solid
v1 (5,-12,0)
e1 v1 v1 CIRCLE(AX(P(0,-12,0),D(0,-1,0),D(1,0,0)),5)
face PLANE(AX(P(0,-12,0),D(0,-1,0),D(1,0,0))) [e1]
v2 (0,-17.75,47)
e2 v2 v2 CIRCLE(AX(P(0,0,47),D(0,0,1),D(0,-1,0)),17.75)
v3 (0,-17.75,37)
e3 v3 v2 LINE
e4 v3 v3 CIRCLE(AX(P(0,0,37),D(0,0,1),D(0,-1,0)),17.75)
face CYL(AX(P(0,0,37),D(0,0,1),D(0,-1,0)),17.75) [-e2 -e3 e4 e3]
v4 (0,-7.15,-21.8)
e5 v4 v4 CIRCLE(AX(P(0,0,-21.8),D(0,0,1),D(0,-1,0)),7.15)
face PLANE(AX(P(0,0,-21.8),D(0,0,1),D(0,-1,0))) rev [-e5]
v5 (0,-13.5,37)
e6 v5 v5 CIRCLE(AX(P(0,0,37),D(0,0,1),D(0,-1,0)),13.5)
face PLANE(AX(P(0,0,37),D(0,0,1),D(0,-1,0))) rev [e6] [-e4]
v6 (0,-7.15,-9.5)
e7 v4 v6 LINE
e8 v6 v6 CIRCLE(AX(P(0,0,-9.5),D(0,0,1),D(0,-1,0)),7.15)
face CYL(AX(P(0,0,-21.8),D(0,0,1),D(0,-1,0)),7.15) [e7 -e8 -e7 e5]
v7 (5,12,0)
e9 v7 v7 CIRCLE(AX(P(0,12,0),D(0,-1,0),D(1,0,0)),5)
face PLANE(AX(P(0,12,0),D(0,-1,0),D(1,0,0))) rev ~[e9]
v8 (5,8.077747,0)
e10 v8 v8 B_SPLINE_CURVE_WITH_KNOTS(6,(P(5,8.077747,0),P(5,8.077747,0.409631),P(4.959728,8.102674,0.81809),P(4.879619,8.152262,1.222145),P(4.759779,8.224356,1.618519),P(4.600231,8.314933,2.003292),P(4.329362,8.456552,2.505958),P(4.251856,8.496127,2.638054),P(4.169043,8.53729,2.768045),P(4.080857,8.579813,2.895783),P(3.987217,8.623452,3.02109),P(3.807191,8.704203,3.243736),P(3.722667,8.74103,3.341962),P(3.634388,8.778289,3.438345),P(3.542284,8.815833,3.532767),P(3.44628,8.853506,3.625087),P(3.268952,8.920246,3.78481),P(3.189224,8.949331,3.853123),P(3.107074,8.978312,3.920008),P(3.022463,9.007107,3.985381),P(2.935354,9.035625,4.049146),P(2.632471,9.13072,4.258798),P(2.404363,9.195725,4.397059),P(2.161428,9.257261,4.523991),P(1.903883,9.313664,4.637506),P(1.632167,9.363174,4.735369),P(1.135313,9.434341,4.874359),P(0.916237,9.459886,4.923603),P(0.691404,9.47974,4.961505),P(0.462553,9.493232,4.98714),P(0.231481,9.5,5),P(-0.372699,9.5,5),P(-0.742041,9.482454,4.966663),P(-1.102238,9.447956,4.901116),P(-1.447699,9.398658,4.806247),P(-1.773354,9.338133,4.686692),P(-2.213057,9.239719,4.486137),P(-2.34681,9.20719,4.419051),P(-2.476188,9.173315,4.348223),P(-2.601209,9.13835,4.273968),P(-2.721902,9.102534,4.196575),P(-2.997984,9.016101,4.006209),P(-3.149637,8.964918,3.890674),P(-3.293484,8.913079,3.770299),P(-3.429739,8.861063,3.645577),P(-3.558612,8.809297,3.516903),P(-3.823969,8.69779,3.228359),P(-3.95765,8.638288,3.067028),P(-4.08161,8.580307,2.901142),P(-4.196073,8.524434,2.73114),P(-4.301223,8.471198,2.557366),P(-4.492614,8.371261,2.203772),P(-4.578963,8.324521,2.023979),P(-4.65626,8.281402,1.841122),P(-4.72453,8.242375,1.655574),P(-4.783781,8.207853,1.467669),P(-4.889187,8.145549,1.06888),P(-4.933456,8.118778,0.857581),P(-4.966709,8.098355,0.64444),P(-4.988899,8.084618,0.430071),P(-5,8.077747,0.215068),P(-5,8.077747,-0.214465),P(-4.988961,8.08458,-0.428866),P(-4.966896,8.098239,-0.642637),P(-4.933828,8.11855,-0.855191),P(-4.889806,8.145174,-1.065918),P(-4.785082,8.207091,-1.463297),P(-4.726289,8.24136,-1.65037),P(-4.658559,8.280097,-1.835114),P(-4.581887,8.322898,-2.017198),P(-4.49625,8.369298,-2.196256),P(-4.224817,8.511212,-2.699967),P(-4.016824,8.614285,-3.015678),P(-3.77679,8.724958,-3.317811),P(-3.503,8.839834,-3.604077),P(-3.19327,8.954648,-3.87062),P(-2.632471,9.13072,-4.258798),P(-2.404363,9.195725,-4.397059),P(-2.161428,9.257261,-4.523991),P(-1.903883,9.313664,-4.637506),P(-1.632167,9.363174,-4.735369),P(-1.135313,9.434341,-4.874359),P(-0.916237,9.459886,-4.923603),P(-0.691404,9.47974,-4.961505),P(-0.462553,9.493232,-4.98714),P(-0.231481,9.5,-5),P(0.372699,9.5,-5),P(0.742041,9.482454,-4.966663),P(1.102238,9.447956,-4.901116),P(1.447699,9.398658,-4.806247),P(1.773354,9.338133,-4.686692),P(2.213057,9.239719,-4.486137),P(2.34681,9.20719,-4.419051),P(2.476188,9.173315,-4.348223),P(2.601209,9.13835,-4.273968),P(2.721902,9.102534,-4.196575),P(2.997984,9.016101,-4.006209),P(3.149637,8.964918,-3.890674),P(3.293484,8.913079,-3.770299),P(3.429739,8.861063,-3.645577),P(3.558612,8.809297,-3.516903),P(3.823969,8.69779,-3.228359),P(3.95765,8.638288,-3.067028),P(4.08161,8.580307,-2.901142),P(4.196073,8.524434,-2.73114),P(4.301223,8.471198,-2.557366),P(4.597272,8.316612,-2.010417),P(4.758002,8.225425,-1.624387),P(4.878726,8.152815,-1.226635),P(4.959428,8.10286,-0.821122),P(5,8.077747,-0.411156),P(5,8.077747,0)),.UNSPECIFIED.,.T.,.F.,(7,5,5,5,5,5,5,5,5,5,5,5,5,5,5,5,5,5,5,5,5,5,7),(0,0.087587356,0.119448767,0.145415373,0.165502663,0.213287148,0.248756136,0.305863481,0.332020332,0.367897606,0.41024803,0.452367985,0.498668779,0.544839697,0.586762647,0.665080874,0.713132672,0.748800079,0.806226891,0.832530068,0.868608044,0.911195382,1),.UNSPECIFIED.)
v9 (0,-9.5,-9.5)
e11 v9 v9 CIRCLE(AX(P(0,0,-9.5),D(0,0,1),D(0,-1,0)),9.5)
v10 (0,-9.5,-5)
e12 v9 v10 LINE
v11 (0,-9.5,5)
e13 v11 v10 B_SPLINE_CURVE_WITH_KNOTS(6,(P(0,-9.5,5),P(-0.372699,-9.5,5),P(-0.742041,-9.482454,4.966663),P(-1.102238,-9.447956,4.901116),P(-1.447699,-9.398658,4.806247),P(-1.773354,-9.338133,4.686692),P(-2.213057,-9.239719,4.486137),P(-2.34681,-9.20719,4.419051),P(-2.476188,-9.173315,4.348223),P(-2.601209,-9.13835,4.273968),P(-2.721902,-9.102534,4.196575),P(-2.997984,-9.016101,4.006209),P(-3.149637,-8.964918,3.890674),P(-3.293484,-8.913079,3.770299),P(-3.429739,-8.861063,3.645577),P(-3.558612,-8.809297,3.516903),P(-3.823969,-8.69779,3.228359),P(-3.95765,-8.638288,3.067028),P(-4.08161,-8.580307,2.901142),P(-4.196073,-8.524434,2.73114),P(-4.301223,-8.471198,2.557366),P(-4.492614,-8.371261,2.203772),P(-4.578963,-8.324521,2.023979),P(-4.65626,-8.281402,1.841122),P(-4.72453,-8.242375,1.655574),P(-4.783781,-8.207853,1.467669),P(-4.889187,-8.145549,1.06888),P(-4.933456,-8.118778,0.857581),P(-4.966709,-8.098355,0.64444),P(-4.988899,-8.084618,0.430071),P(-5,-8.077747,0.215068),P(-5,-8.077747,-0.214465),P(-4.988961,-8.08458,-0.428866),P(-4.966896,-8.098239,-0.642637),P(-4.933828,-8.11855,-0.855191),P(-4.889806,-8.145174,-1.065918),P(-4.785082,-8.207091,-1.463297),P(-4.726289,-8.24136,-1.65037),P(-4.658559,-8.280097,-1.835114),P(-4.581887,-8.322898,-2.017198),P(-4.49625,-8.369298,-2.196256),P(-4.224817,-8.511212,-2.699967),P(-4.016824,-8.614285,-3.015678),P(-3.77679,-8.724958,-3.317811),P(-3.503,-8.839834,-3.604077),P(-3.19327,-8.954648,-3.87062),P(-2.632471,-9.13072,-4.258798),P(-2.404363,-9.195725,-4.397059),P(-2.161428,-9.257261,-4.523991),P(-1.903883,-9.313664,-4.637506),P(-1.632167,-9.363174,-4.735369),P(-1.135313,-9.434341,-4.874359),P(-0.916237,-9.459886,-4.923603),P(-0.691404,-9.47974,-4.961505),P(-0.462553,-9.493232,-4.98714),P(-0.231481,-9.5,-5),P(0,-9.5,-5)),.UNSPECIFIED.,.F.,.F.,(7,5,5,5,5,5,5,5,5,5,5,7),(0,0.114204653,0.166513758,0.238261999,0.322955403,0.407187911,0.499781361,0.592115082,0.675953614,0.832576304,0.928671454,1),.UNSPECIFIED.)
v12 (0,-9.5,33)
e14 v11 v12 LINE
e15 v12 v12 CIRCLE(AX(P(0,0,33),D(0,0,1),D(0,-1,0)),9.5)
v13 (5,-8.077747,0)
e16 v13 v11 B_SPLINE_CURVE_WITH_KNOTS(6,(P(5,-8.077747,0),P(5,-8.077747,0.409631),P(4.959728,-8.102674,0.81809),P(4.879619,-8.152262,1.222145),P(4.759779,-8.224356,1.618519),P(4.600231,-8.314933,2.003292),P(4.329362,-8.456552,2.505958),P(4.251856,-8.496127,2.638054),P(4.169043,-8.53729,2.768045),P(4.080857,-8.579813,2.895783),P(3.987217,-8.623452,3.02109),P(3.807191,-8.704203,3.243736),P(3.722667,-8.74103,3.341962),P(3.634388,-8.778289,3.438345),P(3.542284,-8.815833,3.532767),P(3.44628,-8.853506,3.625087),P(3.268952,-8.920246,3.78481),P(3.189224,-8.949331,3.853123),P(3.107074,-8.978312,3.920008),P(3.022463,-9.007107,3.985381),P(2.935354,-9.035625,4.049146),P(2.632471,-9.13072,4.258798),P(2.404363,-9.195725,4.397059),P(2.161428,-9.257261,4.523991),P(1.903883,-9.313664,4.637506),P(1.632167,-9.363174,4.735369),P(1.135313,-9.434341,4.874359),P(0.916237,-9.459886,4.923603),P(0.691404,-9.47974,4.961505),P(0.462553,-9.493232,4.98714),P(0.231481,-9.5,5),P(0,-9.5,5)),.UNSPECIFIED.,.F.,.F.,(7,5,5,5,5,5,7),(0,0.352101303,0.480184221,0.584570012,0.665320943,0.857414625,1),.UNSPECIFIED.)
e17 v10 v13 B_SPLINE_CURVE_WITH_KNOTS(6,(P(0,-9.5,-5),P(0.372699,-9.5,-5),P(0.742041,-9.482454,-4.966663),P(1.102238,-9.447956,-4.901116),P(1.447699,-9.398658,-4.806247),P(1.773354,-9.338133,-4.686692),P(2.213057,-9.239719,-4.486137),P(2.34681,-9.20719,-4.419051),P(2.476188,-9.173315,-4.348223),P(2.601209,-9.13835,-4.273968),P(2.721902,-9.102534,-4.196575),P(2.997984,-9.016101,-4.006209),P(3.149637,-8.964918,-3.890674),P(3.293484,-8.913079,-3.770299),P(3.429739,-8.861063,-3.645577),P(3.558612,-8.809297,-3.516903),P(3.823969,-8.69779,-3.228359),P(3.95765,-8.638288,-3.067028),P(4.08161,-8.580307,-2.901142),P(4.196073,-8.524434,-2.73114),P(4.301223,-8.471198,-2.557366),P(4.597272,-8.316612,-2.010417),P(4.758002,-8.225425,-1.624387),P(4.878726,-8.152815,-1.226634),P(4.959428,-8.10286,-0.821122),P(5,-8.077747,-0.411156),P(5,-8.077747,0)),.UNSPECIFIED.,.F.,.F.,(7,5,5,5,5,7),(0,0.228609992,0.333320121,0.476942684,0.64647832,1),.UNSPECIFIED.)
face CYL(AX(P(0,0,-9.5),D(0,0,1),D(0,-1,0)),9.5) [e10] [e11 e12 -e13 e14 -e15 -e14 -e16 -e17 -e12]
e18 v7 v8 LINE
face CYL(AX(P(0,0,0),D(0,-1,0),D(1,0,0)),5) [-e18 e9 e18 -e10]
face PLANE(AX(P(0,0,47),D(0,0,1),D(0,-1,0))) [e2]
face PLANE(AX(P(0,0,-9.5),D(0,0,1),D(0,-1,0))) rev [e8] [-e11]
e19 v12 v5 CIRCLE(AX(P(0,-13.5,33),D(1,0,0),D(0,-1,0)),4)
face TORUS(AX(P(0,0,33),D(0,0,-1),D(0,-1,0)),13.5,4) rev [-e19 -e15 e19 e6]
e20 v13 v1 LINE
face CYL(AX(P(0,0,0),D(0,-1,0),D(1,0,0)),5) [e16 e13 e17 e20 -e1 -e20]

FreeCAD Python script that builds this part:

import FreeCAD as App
import Part
import Sketcher
from FreeCAD import Vector
Q = App.Units.Quantity


def edges_at(feature, points):
    """Names of the edges that pass closest to the given points."""
    edges = feature.Shape.Edges
    near = lambda p: min(range(len(edges)), key=lambda i: edges[i].distToShape(Part.Vertex(*p))[0])
    return sorted({f"Edge{near(p) + 1}" for p in points})


def add_polygon(sketch, points):
    """Adds a closed chain of lines whose ends are joined by coincident constraints."""
    first, n = sketch.GeometryCount, len(points)
    for a, b in zip(points, points[1:] + points[:1]):
        sketch.addGeometry(Part.LineSegment(App.Vector(*a, 0), App.Vector(*b, 0)), False)
    for i in range(n):
        sketch.addConstraint(Sketcher.Constraint("Coincident", first + i, 2, first + (i + 1) % n, 1))

doc = App.newDocument("Part")
body = doc.addObject("PartDesign::Body", "Body")

# Sketch on YZ plane
sketch1 = doc.addObject("Sketcher::SketchObject", "Sketch")
body.addObject(sketch1)
sketch1.AttachmentSupport = (doc.YZ_Plane, [""])
sketch1.MapMode = "FlatFace"
add_polygon(sketch1, [(-9.5, -9.5), (-7.2, -9.5), (-7.2, -21.8), (0, -21.8), (0, 47), (-17.8, 47), (-17.8, 37), (-9.5, 37)])  # lines 0-7
sketch1.addConstraint([
    Sketcher.Constraint("Horizontal", 0),
    Sketcher.Constraint("Vertical", 1),
    Sketcher.Constraint("Horizontal", 2),
    Sketcher.Constraint("Vertical", 3),
    Sketcher.Constraint("Horizontal", 4),
    Sketcher.Constraint("Vertical", 5),
    Sketcher.Constraint("Horizontal", 6),
    Sketcher.Constraint("Vertical", 7),
    Sketcher.Constraint("PointOnObject", 2, 2, -2),
    Sketcher.Constraint("DistanceY", 5, 2, 5, 1, Q("10 mm")),
    Sketcher.Constraint("DistanceY", 1, 2, 1, 1, Q("12.3 mm")),
    Sketcher.Constraint("DistanceY", 3, 1, 3, 2, Q("68.8 mm")),
    Sketcher.Constraint("DistanceY", -1, 1, 3, 2, Q("47 mm")),
    Sketcher.Constraint("DistanceX", 0, 1, 0, 2, Q("2.35 mm")),
    Sketcher.Constraint("DistanceX", 2, 1, 2, 2, Q("7.15 mm")),
    Sketcher.Constraint("DistanceX", 4, 2, 4, 1, Q("17.75 mm")),
])
revolution = doc.addObject("PartDesign::Revolution", "Revolution")
body.addObject(revolution)
revolution.Profile = sketch1
revolution.ReferenceAxis = (sketch1, ["V_Axis"])
revolution.Angle = 360

# Sketch on XZ plane
sketch2 = doc.addObject("Sketcher::SketchObject", "Sketch001")
body.addObject(sketch2)
sketch2.AttachmentSupport = (doc.XZ_Plane, [""])
sketch2.MapMode = "FlatFace"
sketch2.addGeometry(Part.Circle(Vector(0, 0, 0), Vector(0, 0, 1), 5), False)
sketch2.addConstraint([
    Sketcher.Constraint("Coincident", 0, 3, -1, 1),
    Sketcher.Constraint("Diameter", 0, Q("10 mm")),
])
pad1 = doc.addObject("PartDesign::Pad", "Pad")
body.addObject(pad1)
pad1.Profile = sketch2
pad1.Length = 24
pad1.Midplane = True
doc.recompute()

fillet = doc.addObject("PartDesign::Fillet", "Fillet")
body.addObject(fillet)
fillet.Base = (pad1, edges_at(pad1, [(0, 9.5, 37)]))
fillet.Radius = 4

doc.recompute()
